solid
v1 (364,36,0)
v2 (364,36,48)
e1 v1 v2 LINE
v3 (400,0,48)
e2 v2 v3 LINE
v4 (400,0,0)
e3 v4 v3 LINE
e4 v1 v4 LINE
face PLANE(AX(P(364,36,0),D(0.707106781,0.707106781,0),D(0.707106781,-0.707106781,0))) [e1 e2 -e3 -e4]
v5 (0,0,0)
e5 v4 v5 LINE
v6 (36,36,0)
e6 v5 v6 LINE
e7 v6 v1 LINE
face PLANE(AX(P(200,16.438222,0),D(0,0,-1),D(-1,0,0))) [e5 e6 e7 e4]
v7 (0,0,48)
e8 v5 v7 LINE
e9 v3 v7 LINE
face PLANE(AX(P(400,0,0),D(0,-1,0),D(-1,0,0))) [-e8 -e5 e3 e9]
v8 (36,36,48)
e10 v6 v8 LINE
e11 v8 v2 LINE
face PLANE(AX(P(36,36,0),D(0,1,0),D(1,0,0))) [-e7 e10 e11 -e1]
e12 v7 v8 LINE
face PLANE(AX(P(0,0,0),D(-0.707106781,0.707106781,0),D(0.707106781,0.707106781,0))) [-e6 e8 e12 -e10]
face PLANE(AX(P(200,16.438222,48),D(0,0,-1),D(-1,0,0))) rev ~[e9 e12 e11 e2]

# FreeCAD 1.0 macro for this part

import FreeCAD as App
import Part
import Sketcher

V = App.Vector
Q = App.Units.Quantity


def add_polygon(sketch, points):
    """Adds a closed chain of lines whose ends are joined by coincident constraints."""
    first, n = sketch.GeometryCount, len(points)
    for a, b in zip(points, points[1:] + points[:1]):
        sketch.addGeometry(Part.LineSegment(App.Vector(*a, 0), App.Vector(*b, 0)), False)
    for i in range(n):
        sketch.addConstraint(Sketcher.Constraint("Coincident", first + i, 2, first + (i + 1) % n, 1))

doc = App.newDocument("Part")
body = doc.addObject("PartDesign::Body", "Body")

# Sketch on XY plane
sketch1 = body.newObject("Sketcher::SketchObject", "Sketch")
sketch1.AttachmentSupport = (doc.getObject("XY_Plane"), [""])
sketch1.MapMode = "FlatFace"
add_polygon(sketch1, [(36, 36), (0, 0), (400, 0), (364, 36)])  # lines 0-3
sketch1.addConstraint(Sketcher.Constraint("Horizontal", 1))
sketch1.addConstraint(Sketcher.Constraint("Horizontal", 3))
sketch1.addConstraint(Sketcher.Constraint("Coincident", 0, 2, -1, 1))
sketch1.addConstraint(Sketcher.Constraint("Perpendicular", 0, 2))
sketch1.addConstraint(Sketcher.Constraint("Equal", 0, 2))
sketch1.addConstraint(Sketcher.Constraint("DistanceX", 1, 1, 1, 2, Q("400 mm")))
sketch1.addConstraint(Sketcher.Constraint("DistanceX", 3, 2, 3, 1, Q("328 mm")))
pad1 = body.newObject("PartDesign::Pad", "Pad")
pad1.Profile = sketch1
pad1.Length = 48

doc.recompute()
